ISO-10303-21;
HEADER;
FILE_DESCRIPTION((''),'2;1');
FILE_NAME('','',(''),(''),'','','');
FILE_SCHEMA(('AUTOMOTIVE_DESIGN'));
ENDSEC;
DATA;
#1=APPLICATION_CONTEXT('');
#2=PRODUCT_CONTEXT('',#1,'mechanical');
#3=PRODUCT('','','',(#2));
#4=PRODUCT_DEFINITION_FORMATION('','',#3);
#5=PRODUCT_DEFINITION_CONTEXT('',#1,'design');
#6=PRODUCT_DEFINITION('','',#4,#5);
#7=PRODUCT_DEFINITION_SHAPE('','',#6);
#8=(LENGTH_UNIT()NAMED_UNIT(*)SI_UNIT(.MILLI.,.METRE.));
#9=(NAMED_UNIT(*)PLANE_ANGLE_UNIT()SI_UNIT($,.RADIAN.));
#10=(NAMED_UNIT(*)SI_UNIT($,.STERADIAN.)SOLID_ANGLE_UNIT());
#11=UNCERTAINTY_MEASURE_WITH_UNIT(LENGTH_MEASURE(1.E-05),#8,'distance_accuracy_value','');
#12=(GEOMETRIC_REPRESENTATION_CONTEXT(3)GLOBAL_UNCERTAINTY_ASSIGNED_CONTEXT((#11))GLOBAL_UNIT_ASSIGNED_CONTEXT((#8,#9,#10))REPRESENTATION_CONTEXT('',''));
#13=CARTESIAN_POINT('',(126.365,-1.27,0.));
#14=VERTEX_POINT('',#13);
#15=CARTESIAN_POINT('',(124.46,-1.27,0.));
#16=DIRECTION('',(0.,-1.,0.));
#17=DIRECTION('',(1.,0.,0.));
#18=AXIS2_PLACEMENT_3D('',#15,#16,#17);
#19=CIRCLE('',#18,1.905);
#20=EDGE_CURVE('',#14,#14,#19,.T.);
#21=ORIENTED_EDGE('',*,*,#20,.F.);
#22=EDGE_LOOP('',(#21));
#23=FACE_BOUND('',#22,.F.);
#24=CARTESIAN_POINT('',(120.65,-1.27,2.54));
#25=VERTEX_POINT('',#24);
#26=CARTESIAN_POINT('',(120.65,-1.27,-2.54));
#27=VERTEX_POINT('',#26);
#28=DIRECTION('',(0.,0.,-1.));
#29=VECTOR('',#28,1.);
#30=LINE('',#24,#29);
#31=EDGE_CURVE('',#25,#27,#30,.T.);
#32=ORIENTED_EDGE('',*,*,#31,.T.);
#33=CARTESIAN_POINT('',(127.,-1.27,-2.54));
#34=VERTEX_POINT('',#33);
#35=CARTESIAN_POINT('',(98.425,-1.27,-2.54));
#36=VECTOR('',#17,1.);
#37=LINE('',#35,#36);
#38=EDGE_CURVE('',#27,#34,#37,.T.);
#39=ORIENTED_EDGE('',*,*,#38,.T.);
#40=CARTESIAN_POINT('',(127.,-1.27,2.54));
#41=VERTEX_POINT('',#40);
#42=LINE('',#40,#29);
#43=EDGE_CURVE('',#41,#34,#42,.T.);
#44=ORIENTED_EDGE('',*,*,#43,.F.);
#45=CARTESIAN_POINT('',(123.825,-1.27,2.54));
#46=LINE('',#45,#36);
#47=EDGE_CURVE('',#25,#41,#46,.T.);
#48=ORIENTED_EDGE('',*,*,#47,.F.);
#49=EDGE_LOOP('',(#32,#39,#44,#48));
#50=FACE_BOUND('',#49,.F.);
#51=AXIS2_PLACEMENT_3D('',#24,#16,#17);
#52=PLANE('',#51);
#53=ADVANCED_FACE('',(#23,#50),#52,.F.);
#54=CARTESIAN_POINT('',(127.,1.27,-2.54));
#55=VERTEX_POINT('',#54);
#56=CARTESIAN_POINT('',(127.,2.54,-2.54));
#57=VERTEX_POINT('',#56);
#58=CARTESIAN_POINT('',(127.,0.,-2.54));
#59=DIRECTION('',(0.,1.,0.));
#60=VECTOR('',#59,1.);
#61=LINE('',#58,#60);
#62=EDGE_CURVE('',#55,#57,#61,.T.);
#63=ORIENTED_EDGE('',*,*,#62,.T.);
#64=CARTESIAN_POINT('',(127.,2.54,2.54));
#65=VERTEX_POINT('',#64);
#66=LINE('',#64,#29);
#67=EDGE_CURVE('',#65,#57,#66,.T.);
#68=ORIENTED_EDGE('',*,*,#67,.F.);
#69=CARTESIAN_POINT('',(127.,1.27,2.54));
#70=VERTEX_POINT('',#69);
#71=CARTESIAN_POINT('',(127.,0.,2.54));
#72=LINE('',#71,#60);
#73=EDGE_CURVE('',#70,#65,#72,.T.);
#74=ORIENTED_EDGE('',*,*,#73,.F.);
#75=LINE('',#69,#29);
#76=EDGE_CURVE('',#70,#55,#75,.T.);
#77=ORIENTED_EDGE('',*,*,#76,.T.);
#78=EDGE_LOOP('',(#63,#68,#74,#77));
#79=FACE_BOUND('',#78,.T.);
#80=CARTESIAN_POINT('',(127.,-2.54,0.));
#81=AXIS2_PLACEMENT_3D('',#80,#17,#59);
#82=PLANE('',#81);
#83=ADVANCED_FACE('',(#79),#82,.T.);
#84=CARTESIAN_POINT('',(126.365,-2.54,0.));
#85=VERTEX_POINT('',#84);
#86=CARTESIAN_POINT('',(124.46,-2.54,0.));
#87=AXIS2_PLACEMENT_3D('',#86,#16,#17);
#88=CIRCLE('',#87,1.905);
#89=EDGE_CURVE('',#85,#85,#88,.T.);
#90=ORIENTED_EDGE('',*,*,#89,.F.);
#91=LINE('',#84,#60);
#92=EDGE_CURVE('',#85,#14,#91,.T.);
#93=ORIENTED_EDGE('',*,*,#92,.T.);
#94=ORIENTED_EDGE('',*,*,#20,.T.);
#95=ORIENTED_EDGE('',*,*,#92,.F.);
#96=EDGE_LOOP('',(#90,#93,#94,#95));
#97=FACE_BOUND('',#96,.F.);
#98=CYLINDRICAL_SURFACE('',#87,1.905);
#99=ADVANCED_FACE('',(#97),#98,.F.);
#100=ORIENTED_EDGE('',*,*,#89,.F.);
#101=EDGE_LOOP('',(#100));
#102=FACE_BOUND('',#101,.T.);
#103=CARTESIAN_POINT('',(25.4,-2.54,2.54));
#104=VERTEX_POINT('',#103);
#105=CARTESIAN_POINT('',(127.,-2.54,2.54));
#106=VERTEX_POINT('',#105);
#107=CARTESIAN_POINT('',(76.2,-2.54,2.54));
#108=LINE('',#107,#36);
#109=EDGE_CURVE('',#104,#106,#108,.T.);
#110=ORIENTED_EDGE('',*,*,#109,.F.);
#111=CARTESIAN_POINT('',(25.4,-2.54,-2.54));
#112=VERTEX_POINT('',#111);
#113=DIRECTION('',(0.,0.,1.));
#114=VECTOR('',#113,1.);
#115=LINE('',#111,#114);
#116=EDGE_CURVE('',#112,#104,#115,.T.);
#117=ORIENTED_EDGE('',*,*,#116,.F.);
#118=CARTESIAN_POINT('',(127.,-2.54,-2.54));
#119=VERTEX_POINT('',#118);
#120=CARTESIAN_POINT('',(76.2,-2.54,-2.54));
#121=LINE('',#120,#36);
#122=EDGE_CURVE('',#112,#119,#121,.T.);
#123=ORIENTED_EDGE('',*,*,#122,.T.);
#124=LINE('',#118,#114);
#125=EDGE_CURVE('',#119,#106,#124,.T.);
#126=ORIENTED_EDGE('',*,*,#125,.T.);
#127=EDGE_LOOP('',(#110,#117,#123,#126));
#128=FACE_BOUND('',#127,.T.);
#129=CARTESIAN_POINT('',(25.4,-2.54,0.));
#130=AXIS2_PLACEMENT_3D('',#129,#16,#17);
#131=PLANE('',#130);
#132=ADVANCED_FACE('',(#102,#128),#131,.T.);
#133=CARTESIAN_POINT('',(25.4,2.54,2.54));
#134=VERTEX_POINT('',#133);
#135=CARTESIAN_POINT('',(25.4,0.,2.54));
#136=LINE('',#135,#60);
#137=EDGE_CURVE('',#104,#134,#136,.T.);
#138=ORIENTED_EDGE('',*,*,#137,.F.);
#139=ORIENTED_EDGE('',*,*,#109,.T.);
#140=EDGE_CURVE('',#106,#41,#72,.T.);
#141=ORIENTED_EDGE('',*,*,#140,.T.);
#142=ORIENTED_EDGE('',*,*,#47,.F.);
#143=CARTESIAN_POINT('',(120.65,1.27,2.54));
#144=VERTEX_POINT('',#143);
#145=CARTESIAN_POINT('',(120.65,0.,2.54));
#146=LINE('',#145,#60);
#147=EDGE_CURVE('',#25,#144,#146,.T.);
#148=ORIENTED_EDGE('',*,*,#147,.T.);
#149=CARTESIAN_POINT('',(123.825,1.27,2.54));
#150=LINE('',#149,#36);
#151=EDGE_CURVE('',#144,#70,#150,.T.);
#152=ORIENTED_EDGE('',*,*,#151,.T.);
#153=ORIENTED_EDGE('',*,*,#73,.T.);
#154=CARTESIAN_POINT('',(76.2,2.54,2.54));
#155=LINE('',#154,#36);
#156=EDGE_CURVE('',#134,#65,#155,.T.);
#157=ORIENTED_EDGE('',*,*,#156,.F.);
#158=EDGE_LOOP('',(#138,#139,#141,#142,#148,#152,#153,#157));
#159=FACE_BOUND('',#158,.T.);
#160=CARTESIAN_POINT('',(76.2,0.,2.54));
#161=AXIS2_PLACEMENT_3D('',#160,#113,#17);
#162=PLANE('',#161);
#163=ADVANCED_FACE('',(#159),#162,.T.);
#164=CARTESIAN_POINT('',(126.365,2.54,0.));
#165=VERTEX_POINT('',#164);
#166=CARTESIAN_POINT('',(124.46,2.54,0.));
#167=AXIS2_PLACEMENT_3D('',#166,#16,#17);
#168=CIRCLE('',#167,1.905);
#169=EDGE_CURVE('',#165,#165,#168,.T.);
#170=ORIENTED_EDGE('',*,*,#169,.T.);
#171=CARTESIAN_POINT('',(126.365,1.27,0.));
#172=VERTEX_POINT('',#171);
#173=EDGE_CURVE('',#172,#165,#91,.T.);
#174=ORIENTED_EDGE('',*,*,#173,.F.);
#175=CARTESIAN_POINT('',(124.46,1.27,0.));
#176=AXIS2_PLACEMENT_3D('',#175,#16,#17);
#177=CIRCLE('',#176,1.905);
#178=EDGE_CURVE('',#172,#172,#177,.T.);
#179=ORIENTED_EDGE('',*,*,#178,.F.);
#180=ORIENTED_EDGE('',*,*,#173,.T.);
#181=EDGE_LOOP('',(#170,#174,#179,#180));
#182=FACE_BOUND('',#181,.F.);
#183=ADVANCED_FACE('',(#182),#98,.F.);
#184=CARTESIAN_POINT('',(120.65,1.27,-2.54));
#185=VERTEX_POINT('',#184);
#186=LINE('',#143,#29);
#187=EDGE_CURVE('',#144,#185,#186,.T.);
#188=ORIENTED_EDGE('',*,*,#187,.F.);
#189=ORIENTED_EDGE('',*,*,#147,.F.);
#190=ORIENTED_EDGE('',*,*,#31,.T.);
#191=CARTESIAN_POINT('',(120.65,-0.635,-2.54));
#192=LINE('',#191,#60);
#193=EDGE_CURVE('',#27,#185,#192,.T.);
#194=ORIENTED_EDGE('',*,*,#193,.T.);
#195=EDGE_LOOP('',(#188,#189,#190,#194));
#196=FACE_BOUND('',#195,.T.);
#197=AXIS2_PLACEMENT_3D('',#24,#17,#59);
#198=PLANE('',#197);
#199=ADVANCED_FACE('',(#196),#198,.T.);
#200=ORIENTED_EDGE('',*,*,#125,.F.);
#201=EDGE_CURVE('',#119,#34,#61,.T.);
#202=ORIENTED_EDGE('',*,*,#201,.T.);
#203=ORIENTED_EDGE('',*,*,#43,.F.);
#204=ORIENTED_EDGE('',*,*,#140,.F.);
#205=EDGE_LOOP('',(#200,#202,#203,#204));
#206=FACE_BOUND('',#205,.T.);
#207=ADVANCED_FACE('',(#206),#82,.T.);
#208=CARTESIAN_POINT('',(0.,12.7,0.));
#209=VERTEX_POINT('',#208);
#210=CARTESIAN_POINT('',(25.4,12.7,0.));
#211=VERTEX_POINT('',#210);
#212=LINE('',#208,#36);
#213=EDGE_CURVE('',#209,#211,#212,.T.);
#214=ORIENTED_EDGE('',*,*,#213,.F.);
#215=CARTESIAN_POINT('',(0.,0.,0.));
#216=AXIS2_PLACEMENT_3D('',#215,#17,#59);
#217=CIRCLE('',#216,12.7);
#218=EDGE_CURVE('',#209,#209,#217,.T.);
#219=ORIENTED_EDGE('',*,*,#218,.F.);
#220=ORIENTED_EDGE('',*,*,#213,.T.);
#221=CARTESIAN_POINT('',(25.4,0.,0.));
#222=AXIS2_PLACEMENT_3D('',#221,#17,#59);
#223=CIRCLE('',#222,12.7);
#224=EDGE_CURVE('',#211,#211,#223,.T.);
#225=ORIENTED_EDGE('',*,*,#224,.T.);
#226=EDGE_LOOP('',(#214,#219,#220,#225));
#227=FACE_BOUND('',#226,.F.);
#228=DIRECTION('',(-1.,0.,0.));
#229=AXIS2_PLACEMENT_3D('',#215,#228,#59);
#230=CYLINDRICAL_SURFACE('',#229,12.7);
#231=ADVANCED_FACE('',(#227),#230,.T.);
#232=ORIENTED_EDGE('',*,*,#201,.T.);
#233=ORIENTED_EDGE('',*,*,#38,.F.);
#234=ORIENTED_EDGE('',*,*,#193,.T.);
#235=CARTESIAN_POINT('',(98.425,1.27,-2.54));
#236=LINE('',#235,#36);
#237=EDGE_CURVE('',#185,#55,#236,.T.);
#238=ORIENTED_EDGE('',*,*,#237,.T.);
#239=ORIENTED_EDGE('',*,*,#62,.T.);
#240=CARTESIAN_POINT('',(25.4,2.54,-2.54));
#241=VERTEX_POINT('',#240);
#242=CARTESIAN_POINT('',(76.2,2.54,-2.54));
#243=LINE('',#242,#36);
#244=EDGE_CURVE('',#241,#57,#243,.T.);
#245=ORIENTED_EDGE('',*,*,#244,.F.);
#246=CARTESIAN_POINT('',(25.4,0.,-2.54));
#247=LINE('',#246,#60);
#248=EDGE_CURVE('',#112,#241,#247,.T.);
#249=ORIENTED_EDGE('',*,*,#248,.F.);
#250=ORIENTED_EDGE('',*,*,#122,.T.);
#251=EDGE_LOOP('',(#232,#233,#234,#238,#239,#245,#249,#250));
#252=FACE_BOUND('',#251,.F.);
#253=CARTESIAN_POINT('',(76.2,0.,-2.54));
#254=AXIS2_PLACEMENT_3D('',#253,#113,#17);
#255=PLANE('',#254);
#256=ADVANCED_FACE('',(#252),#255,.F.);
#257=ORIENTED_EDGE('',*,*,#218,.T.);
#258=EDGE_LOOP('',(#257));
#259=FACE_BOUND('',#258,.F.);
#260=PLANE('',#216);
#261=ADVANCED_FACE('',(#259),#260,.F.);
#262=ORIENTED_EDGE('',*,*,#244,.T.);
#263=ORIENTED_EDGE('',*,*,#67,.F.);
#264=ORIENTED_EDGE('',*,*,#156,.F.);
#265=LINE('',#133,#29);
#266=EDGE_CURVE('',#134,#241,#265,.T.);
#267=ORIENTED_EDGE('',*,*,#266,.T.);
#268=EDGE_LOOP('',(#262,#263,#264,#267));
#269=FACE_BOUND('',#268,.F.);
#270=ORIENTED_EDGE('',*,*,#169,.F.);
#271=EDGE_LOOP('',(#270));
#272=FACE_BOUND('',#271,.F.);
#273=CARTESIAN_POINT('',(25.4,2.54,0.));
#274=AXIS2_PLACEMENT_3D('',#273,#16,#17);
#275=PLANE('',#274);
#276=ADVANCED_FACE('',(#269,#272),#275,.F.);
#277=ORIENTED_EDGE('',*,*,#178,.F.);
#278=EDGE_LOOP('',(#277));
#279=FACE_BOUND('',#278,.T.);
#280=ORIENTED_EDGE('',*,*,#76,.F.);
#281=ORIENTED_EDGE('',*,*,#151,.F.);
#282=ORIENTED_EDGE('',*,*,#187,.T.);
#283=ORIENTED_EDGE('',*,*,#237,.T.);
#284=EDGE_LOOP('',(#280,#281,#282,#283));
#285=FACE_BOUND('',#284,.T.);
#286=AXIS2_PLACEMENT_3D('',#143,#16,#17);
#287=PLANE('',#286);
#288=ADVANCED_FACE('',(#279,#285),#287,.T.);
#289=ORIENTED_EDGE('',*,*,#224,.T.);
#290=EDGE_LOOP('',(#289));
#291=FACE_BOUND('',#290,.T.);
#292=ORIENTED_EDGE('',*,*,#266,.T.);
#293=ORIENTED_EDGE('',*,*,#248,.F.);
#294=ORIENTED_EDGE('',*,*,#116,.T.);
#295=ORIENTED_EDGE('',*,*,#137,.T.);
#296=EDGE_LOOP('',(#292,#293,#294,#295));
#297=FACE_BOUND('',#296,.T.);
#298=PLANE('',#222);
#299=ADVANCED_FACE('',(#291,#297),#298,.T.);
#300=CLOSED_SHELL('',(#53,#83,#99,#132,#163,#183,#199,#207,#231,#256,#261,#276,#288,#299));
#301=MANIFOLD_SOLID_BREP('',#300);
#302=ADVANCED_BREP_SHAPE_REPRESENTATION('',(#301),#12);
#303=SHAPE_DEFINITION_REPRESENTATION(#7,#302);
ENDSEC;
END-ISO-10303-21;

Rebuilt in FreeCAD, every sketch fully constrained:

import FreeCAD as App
import Part
import Sketcher
Q = App.Units.Quantity

doc = App.newDocument("Part")
params = doc.addObject("Spreadsheet::Sheet", "Params")
for row, (alias, value) in enumerate([
    ("sketch1_diameter", "1 in"),
    ("pad1_length", "1 in"),
    ("sketch2_width", "4 in"),
    ("sketch2_height", "0.2 in"),
    ("pad2_length", "0.2 in"),
    ("sketch3_diameter", "0.15 in"),
    ("sketch4_height", "0.1 in"),
    ("sketch4_width", "0.25 in"),
], start=1):
    params.set(f"A{row}", alias)
    params.set(f"B{row}", "=" + value)
    params.setAlias(f"B{row}", alias)

body = doc.addObject("PartDesign::Body", "Body")

# Sketch on YZ plane
sketch1 = body.newObject("Sketcher::SketchObject", "Sketch")
sketch1.AttachmentSupport = (doc.getObject("YZ_Plane"), [""])
sketch1.MapMode = "FlatFace"
sketch1.addGeometry(Part.Circle(App.Vector(0, 0, 0), App.Vector(0, 0, 1), 13), False)
sketch1.addConstraint([
    Sketcher.Constraint("Coincident", 0, 3, -1, 1),
    Sketcher.Constraint("Diameter", 0, Q("1 in")),
])
sketch1.setExpression("Constraints[1]", "Params.sketch1_diameter")
pad1 = body.newObject("PartDesign::Pad", "Pad")
pad1.Profile = sketch1
pad1.setExpression("Length", "Params.pad1_length")

# Sketch on XY plane
sketch2 = body.newObject("Sketcher::SketchObject", "Sketch001")
sketch2.AttachmentSupport = (doc.getObject("XY_Plane"), [""])
sketch2.MapMode = "FlatFace"
sketch2.addGeometry([
    Part.LineSegment(App.Vector(25, 3, 0), App.Vector(25, -3, 0)),
    Part.LineSegment(App.Vector(25, -3, 0), App.Vector(127, -3, 0)),
    Part.LineSegment(App.Vector(127, -3, 0), App.Vector(127, 3, 0)),
    Part.LineSegment(App.Vector(127, 3, 0), App.Vector(25, 3, 0)),
], False)
sketch2.addConstraint([
    Sketcher.Constraint("Coincident", 0, 2, 1, 1),
    Sketcher.Constraint("Coincident", 1, 2, 2, 1),
    Sketcher.Constraint("Coincident", 2, 2, 3, 1),
    Sketcher.Constraint("Coincident", 3, 2, 0, 1),
    Sketcher.Constraint("Vertical", 0),
    Sketcher.Constraint("Horizontal", 1),
    Sketcher.Constraint("Vertical", 2),
    Sketcher.Constraint("Horizontal", 3),
    Sketcher.Constraint("DistanceX", 1, 1, 1, 2, Q("4 in")),
    Sketcher.Constraint("DistanceY", 0, 2, 0, 1, Q("0.2 in")),
    Sketcher.Constraint("DistanceX", -1, 1, 0, 2, Q("1 in")),
    Sketcher.Constraint("DistanceY", 0, 2, -1, 1, Q("0.1 in")),
])
sketch2.setExpression("Constraints[8]", "Params.sketch2_width")
sketch2.setExpression("Constraints[9]", "Params.sketch2_height")
pad2 = body.newObject("PartDesign::Pad", "Pad001")
pad2.Profile = sketch2
pad2.setExpression("Length", "Params.pad2_length")
pad2.Midplane = True

# Sketch on XZ plane
sketch3 = body.newObject("Sketcher::SketchObject", "Sketch002")
sketch3.AttachmentSupport = (doc.getObject("XZ_Plane"), [""])
sketch3.MapMode = "FlatFace"
sketch3.AttachmentOffset = App.Placement(App.Vector(0, 0, 0.1 * 25.4), App.Rotation())
sketch3.addGeometry(Part.Circle(App.Vector(124.5, 0, 0), App.Vector(0, 0, 1), 1.9), False)
sketch3.addConstraint([
    Sketcher.Constraint("PointOnObject", 0, 3, -1),
    Sketcher.Constraint("Diameter", 0, Q("0.15 in")),
    Sketcher.Constraint("DistanceX", -1, 1, 0, 3, Q("4.9 in")),
])
sketch3.setExpression("Constraints[1]", "Params.sketch3_diameter")
pocket1 = body.newObject("PartDesign::Pocket", "Pocket")
pocket1.Profile = sketch3
pocket1.Type = "ThroughAll"

# Sketch on XY plane
sketch4 = body.newObject("Sketcher::SketchObject", "Sketch003")
sketch4.AttachmentSupport = (doc.getObject("XY_Plane"), [""])
sketch4.MapMode = "FlatFace"
sketch4.AttachmentOffset = App.Placement(App.Vector(0, 0, 0.1 * 25.4), App.Rotation())
sketch4.addGeometry([
    Part.LineSegment(App.Vector(120.7, 1.3, 0), App.Vector(120.7, -1.3, 0)),
    Part.LineSegment(App.Vector(120.7, -1.3, 0), App.Vector(127, -1.3, 0)),
    Part.LineSegment(App.Vector(127, -1.3, 0), App.Vector(127, 1.3, 0)),
    Part.LineSegment(App.Vector(127, 1.3, 0), App.Vector(120.7, 1.3, 0)),
], False)
sketch4.addConstraint([
    Sketcher.Constraint("Coincident", 0, 2, 1, 1),
    Sketcher.Constraint("Coincident", 1, 2, 2, 1),
    Sketcher.Constraint("Coincident", 2, 2, 3, 1),
    Sketcher.Constraint("Coincident", 3, 2, 0, 1),
    Sketcher.Constraint("Vertical", 0),
    Sketcher.Constraint("Horizontal", 1),
    Sketcher.Constraint("Vertical", 2),
    Sketcher.Constraint("Horizontal", 3),
    Sketcher.Constraint("DistanceY", 0, 2, 0, 1, Q("0.1 in")),
    Sketcher.Constraint("DistanceX", -1, 1, 1, 2, Q("5 in")),
    Sketcher.Constraint("DistanceX", 1, 1, 1, 2, Q("0.25 in")),
    Sketcher.Constraint("DistanceY", 0, 2, -1, 1, Q("0.05 in")),
])
sketch4.setExpression("Constraints[8]", "Params.sketch4_height")
sketch4.setExpression("Constraints[10]", "Params.sketch4_width")
pocket2 = body.newObject("PartDesign::Pocket", "Pocket001")
pocket2.Profile = sketch4
pocket2.Type = "ThroughAll"

doc.recompute()
